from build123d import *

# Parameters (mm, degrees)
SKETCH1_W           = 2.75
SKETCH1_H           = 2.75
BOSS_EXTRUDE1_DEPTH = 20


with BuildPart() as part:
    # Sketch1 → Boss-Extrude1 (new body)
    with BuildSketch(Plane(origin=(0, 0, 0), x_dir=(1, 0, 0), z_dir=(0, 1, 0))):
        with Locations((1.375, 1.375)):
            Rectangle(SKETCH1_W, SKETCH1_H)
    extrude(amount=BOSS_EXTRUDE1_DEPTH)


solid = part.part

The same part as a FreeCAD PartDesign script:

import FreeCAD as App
import Part
import Sketcher

V = App.Vector
Q = App.Units.Quantity


def add_polygon(sketch, points):
    """Adds a closed chain of lines whose ends are joined by coincident constraints."""
    first, n = sketch.GeometryCount, len(points)
    for a, b in zip(points, points[1:] + points[:1]):
        sketch.addGeometry(Part.LineSegment(App.Vector(*a, 0), App.Vector(*b, 0)), False)
    for i in range(n):
        sketch.addConstraint(Sketcher.Constraint("Coincident", first + i, 2, first + (i + 1) % n, 1))

doc = App.newDocument("Part")
body = doc.addObject("PartDesign::Body", "Body")

sketch1 = body.newObject("Sketcher::SketchObject", "Sketch")
sketch1.AttachmentSupport = (doc.getObject("XZ_Plane"), [""])
sketch1.MapMode = "FlatFace"
add_polygon(sketch1, [(0, -2.8), (0, 0), (2.8, 0), (2.8, -2.8)])
sketch1.addConstraint(Sketcher.Constraint("Vertical", 0))
sketch1.addConstraint(Sketcher.Constraint("Horizontal", 1))
sketch1.addConstraint(Sketcher.Constraint("Vertical", 2))
sketch1.addConstraint(Sketcher.Constraint("Horizontal", 3))
sketch1.addConstraint(Sketcher.Constraint("Coincident", 0, 2, -1, 1))
sketch1.addConstraint(Sketcher.Constraint("Equal", 3, 0))
sketch1.addConstraint(Sketcher.Constraint("DistanceX", 1, 1, 1, 2, Q("2.75 mm")))
pad1 = body.newObject("PartDesign::Pad", "Pad")
pad1.Profile = sketch1
pad1.Length = 20
pad1.Reversed = True

doc.recompute()
